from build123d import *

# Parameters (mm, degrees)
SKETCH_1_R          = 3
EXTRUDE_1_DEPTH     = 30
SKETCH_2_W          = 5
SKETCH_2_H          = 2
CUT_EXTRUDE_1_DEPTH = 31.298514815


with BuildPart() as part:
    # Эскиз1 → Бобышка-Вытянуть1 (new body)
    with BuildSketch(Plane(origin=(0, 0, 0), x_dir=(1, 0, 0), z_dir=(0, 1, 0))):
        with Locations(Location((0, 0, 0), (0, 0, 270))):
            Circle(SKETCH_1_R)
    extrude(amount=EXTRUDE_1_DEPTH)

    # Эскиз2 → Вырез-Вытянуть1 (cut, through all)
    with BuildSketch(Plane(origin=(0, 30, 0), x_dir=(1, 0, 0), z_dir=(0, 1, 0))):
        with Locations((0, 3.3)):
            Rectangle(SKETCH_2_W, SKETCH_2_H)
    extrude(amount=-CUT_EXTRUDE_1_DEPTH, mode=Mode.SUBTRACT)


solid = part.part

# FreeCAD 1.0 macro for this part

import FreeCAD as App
import Part
import Sketcher

V = App.Vector
Q = App.Units.Quantity


def add_polygon(sketch, points):
    """Adds a closed chain of lines whose ends are joined by coincident constraints."""
    first, n = sketch.GeometryCount, len(points)
    for a, b in zip(points, points[1:] + points[:1]):
        sketch.addGeometry(Part.LineSegment(App.Vector(*a, 0), App.Vector(*b, 0)), False)
    for i in range(n):
        sketch.addConstraint(Sketcher.Constraint("Coincident", first + i, 2, first + (i + 1) % n, 1))

doc = App.newDocument("Part")
body = doc.addObject("PartDesign::Body", "Body")

sketch1 = body.newObject("Sketcher::SketchObject", "Sketch")
sketch1.AttachmentSupport = (doc.getObject("XZ_Plane"), [""])
sketch1.MapMode = "FlatFace"
sketch1.addGeometry(Part.Circle(V(0, 0, 0), V(0, 0, 1), 3), False)
sketch1.addConstraint(Sketcher.Constraint("Coincident", 0, 3, -1, 1))
sketch1.addConstraint(Sketcher.Constraint("Diameter", 0, Q("6 mm")))
pad1 = body.newObject("PartDesign::Pad", "Pad")
pad1.Profile = sketch1
pad1.Length = 30
pad1.Reversed = True

sketch2 = body.newObject("Sketcher::SketchObject", "Sketch001")
sketch2.AttachmentSupport = (doc.getObject("XZ_Plane"), [""])
sketch2.MapMode = "FlatFace"
sketch2.AttachmentOffset = App.Placement(V(0, 0, -30), App.Rotation())
add_polygon(sketch2, [(-2.5, -4.3), (-2.5, -2.3), (2.5, -2.3), (2.5, -4.3)])
sketch2.addConstraint(Sketcher.Constraint("Vertical", 0))
sketch2.addConstraint(Sketcher.Constraint("Horizontal", 1))
sketch2.addConstraint(Sketcher.Constraint("Vertical", 2))
sketch2.addConstraint(Sketcher.Constraint("Horizontal", 3))
sketch2.addConstraint(Sketcher.Constraint("DistanceX", 1, 1, 1, 2, Q("5 mm")))
sketch2.addConstraint(Sketcher.Constraint("DistanceY", 0, 1, 0, 2, Q("2 mm")))
sketch2.addConstraint(Sketcher.Constraint("DistanceX", 0, 2, -1, 1, Q("2.5 mm")))
sketch2.addConstraint(Sketcher.Constraint("DistanceY", 0, 2, -1, 1, Q("2.3 mm")))
pocket1 = body.newObject("PartDesign::Pocket", "Pocket")
pocket1.Profile = sketch2
pocket1.Type = "ThroughAll"
pocket1.Reversed = True

doc.recompute()
